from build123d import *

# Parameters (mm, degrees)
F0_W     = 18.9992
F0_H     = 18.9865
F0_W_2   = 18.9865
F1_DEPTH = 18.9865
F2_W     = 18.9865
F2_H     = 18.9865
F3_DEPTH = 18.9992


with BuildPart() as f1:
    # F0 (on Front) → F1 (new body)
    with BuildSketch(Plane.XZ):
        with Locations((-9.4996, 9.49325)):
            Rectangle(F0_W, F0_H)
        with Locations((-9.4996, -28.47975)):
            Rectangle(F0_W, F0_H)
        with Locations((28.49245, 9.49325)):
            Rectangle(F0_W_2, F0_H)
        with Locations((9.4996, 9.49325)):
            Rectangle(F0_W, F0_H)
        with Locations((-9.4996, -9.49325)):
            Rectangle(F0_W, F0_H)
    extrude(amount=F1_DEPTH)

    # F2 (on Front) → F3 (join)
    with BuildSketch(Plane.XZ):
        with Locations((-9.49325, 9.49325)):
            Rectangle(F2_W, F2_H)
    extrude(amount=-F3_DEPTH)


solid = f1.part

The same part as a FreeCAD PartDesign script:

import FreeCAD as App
import Part
import Sketcher

V = App.Vector
Q = App.Units.Quantity


def add_polygon(sketch, points):
    """Adds a closed chain of lines whose ends are joined by coincident constraints."""
    first, n = sketch.GeometryCount, len(points)
    for a, b in zip(points, points[1:] + points[:1]):
        sketch.addGeometry(Part.LineSegment(App.Vector(*a, 0), App.Vector(*b, 0)), False)
    for i in range(n):
        sketch.addConstraint(Sketcher.Constraint("Coincident", first + i, 2, first + (i + 1) % n, 1))

doc = App.newDocument("Part")
body = doc.addObject("PartDesign::Body", "Body")

sketch1 = body.newObject("Sketcher::SketchObject", "Sketch")
sketch1.AttachmentSupport = (doc.getObject("XZ_Plane"), [""])
sketch1.MapMode = "FlatFace"
add_polygon(sketch1, [(-19, 19), (-19, -38), (0, -38), (0, 0), (38, 0), (38, 19)])
sketch1.addConstraint([
    Sketcher.Constraint("Vertical", 0),
    Sketcher.Constraint("Horizontal", 1),
    Sketcher.Constraint("Vertical", 2),
    Sketcher.Constraint("Horizontal", 3),
    Sketcher.Constraint("Vertical", 4),
    Sketcher.Constraint("Horizontal", 5),
    Sketcher.Constraint("Coincident", 2, 2, -1, 1),
    Sketcher.Constraint("DistanceX", 1, 1, 1, 2, Q("0.748 in")),
    Sketcher.Constraint("DistanceY", 2, 1, 2, 2, Q("1.495 in")),
    Sketcher.Constraint("DistanceX", 3, 1, 3, 2, Q("1.4955 in")),
    Sketcher.Constraint("DistanceY", 0, 2, 0, 1, Q("2.2425 in")),
])
pad1 = body.newObject("PartDesign::Pad", "Pad")
pad1.Profile = sketch1
pad1.Length = Q("0.7475 in")

sketch2 = body.newObject("Sketcher::SketchObject", "Sketch001")
sketch2.AttachmentSupport = (doc.getObject("XZ_Plane"), [""])
sketch2.MapMode = "FlatFace"
add_polygon(sketch2, [(-19, 19), (-19, 0), (0, 0), (0, 19)])
sketch2.addConstraint([
    Sketcher.Constraint("Vertical", 0),
    Sketcher.Constraint("Horizontal", 1),
    Sketcher.Constraint("Vertical", 2),
    Sketcher.Constraint("Horizontal", 3),
    Sketcher.Constraint("Coincident", 1, 2, -1, 1),
    Sketcher.Constraint("Equal", 3, 0),
    Sketcher.Constraint("DistanceX", 1, 1, 1, 2, Q("0.7475 in")),
])
pad2 = body.newObject("PartDesign::Pad", "Pad001")
pad2.Profile = sketch2
pad2.Length = Q("0.748 in")
pad2.Reversed = True

doc.recompute()
